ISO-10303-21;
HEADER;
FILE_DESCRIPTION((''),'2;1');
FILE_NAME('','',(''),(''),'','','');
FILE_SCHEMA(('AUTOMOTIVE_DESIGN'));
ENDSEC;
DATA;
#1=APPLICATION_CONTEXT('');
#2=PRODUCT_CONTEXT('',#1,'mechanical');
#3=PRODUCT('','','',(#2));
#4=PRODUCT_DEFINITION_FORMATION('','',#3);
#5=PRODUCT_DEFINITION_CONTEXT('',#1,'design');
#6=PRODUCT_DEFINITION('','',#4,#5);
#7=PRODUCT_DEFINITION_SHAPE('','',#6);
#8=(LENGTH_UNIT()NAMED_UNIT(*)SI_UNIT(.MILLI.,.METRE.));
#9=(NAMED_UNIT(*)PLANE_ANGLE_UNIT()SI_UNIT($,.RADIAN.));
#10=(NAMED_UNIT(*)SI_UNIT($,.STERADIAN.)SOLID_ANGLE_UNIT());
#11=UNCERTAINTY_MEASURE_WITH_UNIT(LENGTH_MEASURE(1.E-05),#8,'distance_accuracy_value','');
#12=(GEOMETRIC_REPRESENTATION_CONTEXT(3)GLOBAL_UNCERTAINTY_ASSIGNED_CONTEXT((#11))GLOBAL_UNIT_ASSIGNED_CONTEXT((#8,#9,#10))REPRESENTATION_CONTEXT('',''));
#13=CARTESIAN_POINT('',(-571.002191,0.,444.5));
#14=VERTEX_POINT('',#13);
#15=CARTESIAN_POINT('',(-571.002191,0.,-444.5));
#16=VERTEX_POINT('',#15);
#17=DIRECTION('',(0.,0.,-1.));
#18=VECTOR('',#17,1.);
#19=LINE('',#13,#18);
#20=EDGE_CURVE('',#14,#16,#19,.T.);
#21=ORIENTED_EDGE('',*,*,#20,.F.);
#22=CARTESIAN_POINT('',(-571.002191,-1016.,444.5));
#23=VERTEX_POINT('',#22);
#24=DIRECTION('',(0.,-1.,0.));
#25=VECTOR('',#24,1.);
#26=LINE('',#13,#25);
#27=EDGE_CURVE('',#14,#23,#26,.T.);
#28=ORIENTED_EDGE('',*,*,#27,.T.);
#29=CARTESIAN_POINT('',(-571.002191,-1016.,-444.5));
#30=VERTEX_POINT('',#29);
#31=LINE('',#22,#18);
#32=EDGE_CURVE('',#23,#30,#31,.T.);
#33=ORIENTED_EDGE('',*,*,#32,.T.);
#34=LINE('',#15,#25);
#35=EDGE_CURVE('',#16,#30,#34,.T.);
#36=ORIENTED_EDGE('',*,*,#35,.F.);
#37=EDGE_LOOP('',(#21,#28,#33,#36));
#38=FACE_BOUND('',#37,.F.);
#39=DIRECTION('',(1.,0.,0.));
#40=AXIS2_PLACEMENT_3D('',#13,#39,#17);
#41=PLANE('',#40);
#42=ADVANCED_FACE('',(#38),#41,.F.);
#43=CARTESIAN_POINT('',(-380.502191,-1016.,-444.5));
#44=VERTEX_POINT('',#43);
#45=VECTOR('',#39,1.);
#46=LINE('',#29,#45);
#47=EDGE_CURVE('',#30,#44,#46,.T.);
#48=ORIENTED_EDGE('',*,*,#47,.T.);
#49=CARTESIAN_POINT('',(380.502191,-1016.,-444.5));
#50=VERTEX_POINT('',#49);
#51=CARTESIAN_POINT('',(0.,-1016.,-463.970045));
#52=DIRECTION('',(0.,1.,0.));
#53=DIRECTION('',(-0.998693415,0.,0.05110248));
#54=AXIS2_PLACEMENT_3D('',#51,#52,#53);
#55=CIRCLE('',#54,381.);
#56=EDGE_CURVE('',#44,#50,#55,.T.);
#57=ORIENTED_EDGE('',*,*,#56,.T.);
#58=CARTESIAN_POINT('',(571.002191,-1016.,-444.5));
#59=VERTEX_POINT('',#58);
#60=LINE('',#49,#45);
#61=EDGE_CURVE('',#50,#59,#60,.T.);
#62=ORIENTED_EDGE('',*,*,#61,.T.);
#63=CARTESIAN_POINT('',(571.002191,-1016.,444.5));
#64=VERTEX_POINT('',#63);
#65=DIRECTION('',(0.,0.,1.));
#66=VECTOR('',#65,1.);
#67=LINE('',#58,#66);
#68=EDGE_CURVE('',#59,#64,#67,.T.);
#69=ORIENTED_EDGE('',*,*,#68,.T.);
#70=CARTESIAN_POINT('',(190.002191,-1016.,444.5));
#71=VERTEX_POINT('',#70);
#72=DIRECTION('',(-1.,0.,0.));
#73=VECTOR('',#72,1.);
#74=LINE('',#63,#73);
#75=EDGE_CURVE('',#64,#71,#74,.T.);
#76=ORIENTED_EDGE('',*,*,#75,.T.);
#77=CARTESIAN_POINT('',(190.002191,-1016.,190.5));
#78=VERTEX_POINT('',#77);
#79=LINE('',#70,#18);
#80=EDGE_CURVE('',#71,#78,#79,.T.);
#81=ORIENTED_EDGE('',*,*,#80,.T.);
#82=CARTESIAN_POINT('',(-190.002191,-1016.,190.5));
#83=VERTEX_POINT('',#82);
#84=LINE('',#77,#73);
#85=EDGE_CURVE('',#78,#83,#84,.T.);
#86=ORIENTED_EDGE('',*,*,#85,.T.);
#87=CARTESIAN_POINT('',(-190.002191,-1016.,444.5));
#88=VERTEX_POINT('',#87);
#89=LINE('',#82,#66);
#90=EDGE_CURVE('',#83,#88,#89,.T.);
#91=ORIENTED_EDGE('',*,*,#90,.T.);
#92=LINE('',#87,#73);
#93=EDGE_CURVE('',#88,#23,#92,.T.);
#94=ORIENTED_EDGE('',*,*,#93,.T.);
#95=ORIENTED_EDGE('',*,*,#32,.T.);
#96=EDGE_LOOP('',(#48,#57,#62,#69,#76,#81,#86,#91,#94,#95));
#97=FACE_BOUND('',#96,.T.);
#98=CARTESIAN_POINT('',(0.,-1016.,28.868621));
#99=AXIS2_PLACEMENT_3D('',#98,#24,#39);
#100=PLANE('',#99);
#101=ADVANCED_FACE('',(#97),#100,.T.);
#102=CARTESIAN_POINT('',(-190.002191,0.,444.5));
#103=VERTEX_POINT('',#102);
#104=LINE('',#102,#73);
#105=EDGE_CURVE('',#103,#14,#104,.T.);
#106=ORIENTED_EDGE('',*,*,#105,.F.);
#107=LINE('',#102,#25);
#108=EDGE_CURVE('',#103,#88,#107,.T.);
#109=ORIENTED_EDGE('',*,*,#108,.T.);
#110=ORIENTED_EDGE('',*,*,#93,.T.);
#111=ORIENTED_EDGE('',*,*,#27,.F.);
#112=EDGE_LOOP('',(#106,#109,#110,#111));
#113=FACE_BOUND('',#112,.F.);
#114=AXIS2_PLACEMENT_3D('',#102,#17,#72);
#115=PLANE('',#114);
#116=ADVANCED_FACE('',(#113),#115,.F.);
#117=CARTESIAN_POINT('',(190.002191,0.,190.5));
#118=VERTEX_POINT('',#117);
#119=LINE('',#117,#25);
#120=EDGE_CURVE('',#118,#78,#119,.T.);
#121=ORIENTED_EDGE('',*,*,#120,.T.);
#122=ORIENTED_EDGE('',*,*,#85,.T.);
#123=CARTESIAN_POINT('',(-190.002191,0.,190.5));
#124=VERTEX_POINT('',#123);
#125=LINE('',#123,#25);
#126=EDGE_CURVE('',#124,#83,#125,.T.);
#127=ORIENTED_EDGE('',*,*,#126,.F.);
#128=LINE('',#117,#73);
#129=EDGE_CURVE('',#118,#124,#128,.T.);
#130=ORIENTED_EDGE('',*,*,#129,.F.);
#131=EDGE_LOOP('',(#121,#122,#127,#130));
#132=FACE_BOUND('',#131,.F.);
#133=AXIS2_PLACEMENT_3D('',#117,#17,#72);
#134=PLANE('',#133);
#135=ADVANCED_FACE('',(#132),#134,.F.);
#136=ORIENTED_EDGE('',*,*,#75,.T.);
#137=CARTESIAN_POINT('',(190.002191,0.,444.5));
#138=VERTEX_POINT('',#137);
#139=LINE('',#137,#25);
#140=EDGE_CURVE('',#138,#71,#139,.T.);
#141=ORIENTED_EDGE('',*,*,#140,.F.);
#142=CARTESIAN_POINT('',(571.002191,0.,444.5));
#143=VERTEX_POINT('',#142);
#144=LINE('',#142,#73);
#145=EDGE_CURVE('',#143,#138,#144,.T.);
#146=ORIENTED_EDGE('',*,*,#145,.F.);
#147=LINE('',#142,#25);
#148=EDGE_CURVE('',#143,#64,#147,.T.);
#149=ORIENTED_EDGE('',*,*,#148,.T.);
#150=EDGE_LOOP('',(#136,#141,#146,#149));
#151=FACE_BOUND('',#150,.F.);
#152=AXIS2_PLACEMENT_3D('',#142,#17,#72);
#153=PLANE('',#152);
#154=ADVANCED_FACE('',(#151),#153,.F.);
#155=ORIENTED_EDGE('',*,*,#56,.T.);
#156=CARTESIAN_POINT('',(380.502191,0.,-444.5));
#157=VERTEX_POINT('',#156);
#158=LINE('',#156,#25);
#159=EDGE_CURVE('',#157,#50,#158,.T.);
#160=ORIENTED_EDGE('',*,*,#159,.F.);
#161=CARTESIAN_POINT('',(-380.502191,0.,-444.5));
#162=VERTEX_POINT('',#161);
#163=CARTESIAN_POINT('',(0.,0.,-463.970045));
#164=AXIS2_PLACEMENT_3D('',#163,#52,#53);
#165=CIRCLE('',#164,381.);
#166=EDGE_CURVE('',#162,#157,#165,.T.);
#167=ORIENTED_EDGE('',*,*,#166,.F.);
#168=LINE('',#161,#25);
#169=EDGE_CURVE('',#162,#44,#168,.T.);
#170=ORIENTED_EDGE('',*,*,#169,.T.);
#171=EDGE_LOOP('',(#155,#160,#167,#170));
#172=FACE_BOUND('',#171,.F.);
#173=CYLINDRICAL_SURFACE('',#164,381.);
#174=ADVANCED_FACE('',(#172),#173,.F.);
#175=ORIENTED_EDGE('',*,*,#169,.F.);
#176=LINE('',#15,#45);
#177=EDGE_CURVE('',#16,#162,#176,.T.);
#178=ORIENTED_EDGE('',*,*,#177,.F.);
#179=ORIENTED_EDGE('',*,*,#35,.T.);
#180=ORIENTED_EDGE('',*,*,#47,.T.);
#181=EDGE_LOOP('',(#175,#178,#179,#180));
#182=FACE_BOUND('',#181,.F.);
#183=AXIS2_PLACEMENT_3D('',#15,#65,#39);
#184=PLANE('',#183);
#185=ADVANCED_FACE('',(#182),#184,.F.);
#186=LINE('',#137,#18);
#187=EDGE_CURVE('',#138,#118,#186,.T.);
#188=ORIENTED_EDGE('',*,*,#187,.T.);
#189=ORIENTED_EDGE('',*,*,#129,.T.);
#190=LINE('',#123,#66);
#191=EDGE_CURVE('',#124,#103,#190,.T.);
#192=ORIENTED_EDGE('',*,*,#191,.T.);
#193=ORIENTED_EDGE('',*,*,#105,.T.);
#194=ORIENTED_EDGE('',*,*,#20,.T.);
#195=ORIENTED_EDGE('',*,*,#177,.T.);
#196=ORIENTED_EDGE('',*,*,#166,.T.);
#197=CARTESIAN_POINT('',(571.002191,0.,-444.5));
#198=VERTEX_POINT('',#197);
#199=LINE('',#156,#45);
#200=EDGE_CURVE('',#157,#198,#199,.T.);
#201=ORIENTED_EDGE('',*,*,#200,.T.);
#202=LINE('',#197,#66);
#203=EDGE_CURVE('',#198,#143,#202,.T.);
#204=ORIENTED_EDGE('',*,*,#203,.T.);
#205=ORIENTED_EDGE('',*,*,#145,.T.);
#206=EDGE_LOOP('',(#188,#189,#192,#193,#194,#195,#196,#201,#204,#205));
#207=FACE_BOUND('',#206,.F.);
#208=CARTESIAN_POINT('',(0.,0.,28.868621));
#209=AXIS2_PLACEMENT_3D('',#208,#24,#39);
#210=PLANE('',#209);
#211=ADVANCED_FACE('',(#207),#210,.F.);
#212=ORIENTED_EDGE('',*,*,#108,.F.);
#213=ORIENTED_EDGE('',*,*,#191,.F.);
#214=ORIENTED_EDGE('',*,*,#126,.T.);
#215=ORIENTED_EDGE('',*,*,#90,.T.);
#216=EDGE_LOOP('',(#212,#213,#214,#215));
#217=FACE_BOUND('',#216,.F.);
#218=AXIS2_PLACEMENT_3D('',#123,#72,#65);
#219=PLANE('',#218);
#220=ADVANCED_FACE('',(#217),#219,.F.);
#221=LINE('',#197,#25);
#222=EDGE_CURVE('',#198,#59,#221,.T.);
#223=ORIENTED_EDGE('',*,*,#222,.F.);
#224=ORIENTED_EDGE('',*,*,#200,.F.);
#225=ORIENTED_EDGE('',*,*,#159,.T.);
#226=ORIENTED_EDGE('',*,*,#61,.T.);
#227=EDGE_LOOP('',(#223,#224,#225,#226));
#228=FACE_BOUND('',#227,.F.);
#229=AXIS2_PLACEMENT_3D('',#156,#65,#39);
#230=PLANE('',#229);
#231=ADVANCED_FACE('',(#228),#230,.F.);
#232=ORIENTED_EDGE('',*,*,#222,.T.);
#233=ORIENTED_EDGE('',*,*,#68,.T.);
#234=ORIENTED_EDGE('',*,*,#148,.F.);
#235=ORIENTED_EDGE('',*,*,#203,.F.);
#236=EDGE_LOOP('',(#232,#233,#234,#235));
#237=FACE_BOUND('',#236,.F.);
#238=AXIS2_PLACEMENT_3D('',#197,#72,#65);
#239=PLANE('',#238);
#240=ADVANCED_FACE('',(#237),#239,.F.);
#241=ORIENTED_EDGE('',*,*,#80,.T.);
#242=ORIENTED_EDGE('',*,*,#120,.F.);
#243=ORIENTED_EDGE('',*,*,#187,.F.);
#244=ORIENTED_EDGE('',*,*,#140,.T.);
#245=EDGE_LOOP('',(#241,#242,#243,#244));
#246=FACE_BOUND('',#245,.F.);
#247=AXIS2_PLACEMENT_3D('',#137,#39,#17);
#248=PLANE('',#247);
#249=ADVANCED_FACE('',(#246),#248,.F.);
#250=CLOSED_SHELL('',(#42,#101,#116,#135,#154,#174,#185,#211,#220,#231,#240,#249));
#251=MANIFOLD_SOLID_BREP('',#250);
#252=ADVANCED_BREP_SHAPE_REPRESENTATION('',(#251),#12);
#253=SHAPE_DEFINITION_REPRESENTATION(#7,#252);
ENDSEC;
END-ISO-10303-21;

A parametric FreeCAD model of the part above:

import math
import FreeCAD as App
import Part
import Sketcher

V = App.Vector
Q = App.Units.Quantity

doc = App.newDocument("Part")
params = doc.addObject("Spreadsheet::Sheet", "Params")
for row, (alias, value) in enumerate([
    ("sketch1_radius", "15 in"),
    ("sketch1_width", "15 in"),
    ("sketch1_height", "35 in"),
    ("sketch1_height2", "10 in"),
    ("sketch1_width2", "7.5 in"),
    ("pad1_length", "40 in"),
], start=1):
    params.set(f"A{row}", alias)
    params.set(f"B{row}", "=" + value)
    params.setAlias(f"B{row}", alias)

body = doc.addObject("PartDesign::Body", "Body")

# Sketch on XZ plane
sketch1 = body.newObject("Sketcher::SketchObject", "Sketch")
sketch1.AttachmentSupport = (doc.getObject("XZ_Plane"), [""])
sketch1.MapMode = "FlatFace"
sketch1.addGeometry([
    Part.LineSegment(V(-190, 444, 0), V(-571, 444, 0)),  # 0
    Part.LineSegment(V(-571, 444, 0), V(-571, -444, 0)),  # 1
    Part.LineSegment(V(-571, -444, 0), V(-381, -444, 0)),  # 2
    Part.ArcOfCircle(Part.Circle(V(0, -464, 0), V(0, 0, 1), 381), math.radians(3), math.radians(177)),  # 3
    Part.LineSegment(V(381, -444, 0), V(571, -444, 0)),  # 4
    Part.LineSegment(V(571, -444, 0), V(571, 444, 0)),  # 5
    Part.LineSegment(V(571, 444, 0), V(190, 444, 0)),  # 6
    Part.LineSegment(V(190, 444, 0), V(190, 190, 0)),  # 7
    Part.LineSegment(V(190, 190, 0), V(-190, 190, 0)),  # 8
    Part.LineSegment(V(-190, 190, 0), V(-190, 444, 0)),  # 9
], False)
sketch1.addConstraint([
    Sketcher.Constraint("Coincident", 0, 2, 1, 1),
    Sketcher.Constraint("Coincident", 1, 2, 2, 1),
    Sketcher.Constraint("Coincident", 2, 2, 3, 2),
    Sketcher.Constraint("Coincident", 3, 1, 4, 1),
    Sketcher.Constraint("Coincident", 4, 2, 5, 1),
    Sketcher.Constraint("Coincident", 5, 2, 6, 1),
    Sketcher.Constraint("Coincident", 6, 2, 7, 1),
    Sketcher.Constraint("Coincident", 7, 2, 8, 1),
    Sketcher.Constraint("Coincident", 8, 2, 9, 1),
    Sketcher.Constraint("Coincident", 9, 2, 0, 1),
    Sketcher.Constraint("Horizontal", 0),
    Sketcher.Constraint("Vertical", 1),
    Sketcher.Constraint("Horizontal", 2),
    Sketcher.Constraint("Horizontal", 4),
    Sketcher.Constraint("Vertical", 5),
    Sketcher.Constraint("Horizontal", 6),
    Sketcher.Constraint("Vertical", 7),
    Sketcher.Constraint("Horizontal", 8),
    Sketcher.Constraint("Vertical", 9),
    Sketcher.Constraint("Symmetric", 0, 2, 4, 2, -1, 1),
    Sketcher.Constraint("Symmetric", 6, 2, 9, 2, -2),
    Sketcher.Constraint("PointOnObject", 3, 3, -2),
    Sketcher.Constraint("Equal", 2, 4),
    Sketcher.Constraint("Radius", 3, Q("15 in")),
    Sketcher.Constraint("DistanceX", 0, 2, 0, 1, Q("15 in")),
    Sketcher.Constraint("DistanceY", 1, 2, 1, 1, Q("35 in")),
    Sketcher.Constraint("DistanceY", 7, 2, 7, 1, Q("10 in")),
    Sketcher.Constraint("DistanceX", 2, 1, 2, 2, Q("7.5 in")),
    Sketcher.Constraint("DistanceX", 8, 2, 8, 1, 380.004382),
])
sketch1.setExpression("Constraints[23]", "Params.sketch1_radius")
sketch1.setExpression("Constraints[24]", "Params.sketch1_width")
sketch1.setExpression("Constraints[25]", "Params.sketch1_height")
sketch1.setExpression("Constraints[26]", "Params.sketch1_height2")
sketch1.setExpression("Constraints[27]", "Params.sketch1_width2")
pad1 = body.newObject("PartDesign::Pad", "Pad")
pad1.Profile = sketch1
pad1.setExpression("Length", "Params.pad1_length")

doc.recompute()
